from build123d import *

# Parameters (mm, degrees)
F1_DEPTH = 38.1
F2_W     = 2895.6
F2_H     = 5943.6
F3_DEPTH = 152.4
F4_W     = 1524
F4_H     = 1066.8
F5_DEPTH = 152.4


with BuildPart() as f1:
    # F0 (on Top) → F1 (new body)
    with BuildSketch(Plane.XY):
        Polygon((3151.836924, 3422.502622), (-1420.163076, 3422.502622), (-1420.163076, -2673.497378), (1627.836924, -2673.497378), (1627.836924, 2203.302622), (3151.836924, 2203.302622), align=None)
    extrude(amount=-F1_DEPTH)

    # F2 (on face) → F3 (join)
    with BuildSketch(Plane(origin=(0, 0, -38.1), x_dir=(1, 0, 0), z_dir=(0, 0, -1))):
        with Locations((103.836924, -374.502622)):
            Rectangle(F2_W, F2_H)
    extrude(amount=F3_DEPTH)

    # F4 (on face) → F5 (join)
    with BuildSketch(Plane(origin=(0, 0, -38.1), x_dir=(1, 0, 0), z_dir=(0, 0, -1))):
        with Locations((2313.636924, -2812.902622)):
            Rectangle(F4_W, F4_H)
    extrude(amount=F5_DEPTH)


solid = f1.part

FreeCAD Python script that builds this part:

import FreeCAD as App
import Part
import Sketcher
from FreeCAD import Vector
Q = App.Units.Quantity

doc = App.newDocument("Part")
params = doc.addObject("Spreadsheet::Sheet", "Params")
for row, (alias, value) in enumerate([
    ("sketch1_width", "180 in"),
    ("sketch1_width2", "120 in"),
    ("sketch1_height", "240 in"),
    ("sketch1_height2", "192 in"),
    ("pad1_length", "1.5 in"),
    ("sketch2_width", "114 in"),
    ("sketch2_height", "234 in"),
    ("pad2_length", "6 in"),
    ("sketch3_width", "60 in"),
    ("sketch3_height", "42 in"),
    ("pad3_length", "6 in"),
], start=1):
    params.set(f"A{row}", alias)
    params.set(f"B{row}", "=" + value)
    params.setAlias(f"B{row}", alias)

body = doc.addObject("PartDesign::Body", "Body")

sketch1 = doc.addObject("Sketcher::SketchObject", "Sketch")
body.addObject(sketch1)
sketch1.AttachmentSupport = (doc.XY_Plane, [""])
sketch1.MapMode = "FlatFace"
sketch1.addGeometry(Part.LineSegment(Vector(3152, 3423, 0), Vector(-1420, 3423, 0)), False)
sketch1.addGeometry(Part.LineSegment(Vector(-1420, 3423, 0), Vector(-1420, -2673, 0)), False)
sketch1.addGeometry(Part.LineSegment(Vector(-1420, -2673, 0), Vector(1628, -2673, 0)), False)
sketch1.addGeometry(Part.LineSegment(Vector(1628, -2673, 0), Vector(1628, 2203, 0)), False)
sketch1.addGeometry(Part.LineSegment(Vector(1628, 2203, 0), Vector(3152, 2203, 0)), False)
sketch1.addGeometry(Part.LineSegment(Vector(3152, 2203, 0), Vector(3152, 3423, 0)), False)
sketch1.addConstraint(Sketcher.Constraint("Coincident", 0, 2, 1, 1))
sketch1.addConstraint(Sketcher.Constraint("Coincident", 1, 2, 2, 1))
sketch1.addConstraint(Sketcher.Constraint("Coincident", 2, 2, 3, 1))
sketch1.addConstraint(Sketcher.Constraint("Coincident", 3, 2, 4, 1))
sketch1.addConstraint(Sketcher.Constraint("Coincident", 4, 2, 5, 1))
sketch1.addConstraint(Sketcher.Constraint("Coincident", 5, 2, 0, 1))
sketch1.addConstraint(Sketcher.Constraint("Horizontal", 0))
sketch1.addConstraint(Sketcher.Constraint("Vertical", 1))
sketch1.addConstraint(Sketcher.Constraint("Horizontal", 2))
sketch1.addConstraint(Sketcher.Constraint("Vertical", 3))
sketch1.addConstraint(Sketcher.Constraint("Horizontal", 4))
sketch1.addConstraint(Sketcher.Constraint("Vertical", 5))
sketch1.addConstraint(Sketcher.Constraint("DistanceX", 0, 2, 0, 1, Q("180 in")))
sketch1.addConstraint(Sketcher.Constraint("DistanceX", 2, 1, 2, 2, Q("120 in")))
sketch1.addConstraint(Sketcher.Constraint("DistanceY", 1, 2, 1, 1, Q("240 in")))
sketch1.addConstraint(Sketcher.Constraint("DistanceY", 3, 1, 3, 2, Q("192 in")))
sketch1.addConstraint(Sketcher.Constraint("DistanceY", -1, 1, 0, 2, 3422.502622))
sketch1.addConstraint(Sketcher.Constraint("DistanceX", 0, 2, -1, 1, 1420.163076))
sketch1.setExpression("Constraints[12]", "Params.sketch1_width")
sketch1.setExpression("Constraints[13]", "Params.sketch1_width2")
sketch1.setExpression("Constraints[14]", "Params.sketch1_height")
sketch1.setExpression("Constraints[15]", "Params.sketch1_height2")
pad1 = doc.addObject("PartDesign::Pad", "Pad")
body.addObject(pad1)
pad1.Profile = sketch1
pad1.setExpression("Length", "Params.pad1_length")
pad1.Reversed = True

sketch2 = doc.addObject("Sketcher::SketchObject", "Sketch001")
body.addObject(sketch2)
sketch2.AttachmentSupport = (doc.XY_Plane, [""])
sketch2.MapMode = "FlatFace"
sketch2.AttachmentOffset = App.Placement(Vector(0, 0, -1.5 * 25.4), App.Rotation())
sketch2.addGeometry(Part.LineSegment(Vector(-1344, -2597, 0), Vector(-1344, 3346, 0)), False)
sketch2.addGeometry(Part.LineSegment(Vector(-1344, 3346, 0), Vector(1552, 3346, 0)), False)
sketch2.addGeometry(Part.LineSegment(Vector(1552, 3346, 0), Vector(1552, -2597, 0)), False)
sketch2.addGeometry(Part.LineSegment(Vector(1552, -2597, 0), Vector(-1344, -2597, 0)), False)
sketch2.addConstraint(Sketcher.Constraint("Coincident", 0, 2, 1, 1))
sketch2.addConstraint(Sketcher.Constraint("Coincident", 1, 2, 2, 1))
sketch2.addConstraint(Sketcher.Constraint("Coincident", 2, 2, 3, 1))
sketch2.addConstraint(Sketcher.Constraint("Coincident", 3, 2, 0, 1))
sketch2.addConstraint(Sketcher.Constraint("Vertical", 0))
sketch2.addConstraint(Sketcher.Constraint("Horizontal", 1))
sketch2.addConstraint(Sketcher.Constraint("Vertical", 2))
sketch2.addConstraint(Sketcher.Constraint("Horizontal", 3))
sketch2.addConstraint(Sketcher.Constraint("DistanceX", 1, 1, 1, 2, Q("114 in")))
sketch2.addConstraint(Sketcher.Constraint("DistanceY", 0, 1, 0, 2, Q("234 in")))
sketch2.addConstraint(Sketcher.Constraint("DistanceY", 2, 2, -1, 1, 2597.297378))
sketch2.addConstraint(Sketcher.Constraint("DistanceX", 0, 2, -1, 1, 1343.963076))
sketch2.setExpression("Constraints[8]", "Params.sketch2_width")
sketch2.setExpression("Constraints[9]", "Params.sketch2_height")
pad2 = doc.addObject("PartDesign::Pad", "Pad001")
body.addObject(pad2)
pad2.Profile = sketch2
pad2.setExpression("Length", "Params.pad2_length")
pad2.Reversed = True

sketch3 = doc.addObject("Sketcher::SketchObject", "Sketch002")
body.addObject(sketch3)
sketch3.AttachmentSupport = (doc.XY_Plane, [""])
sketch3.MapMode = "FlatFace"
sketch3.AttachmentOffset = App.Placement(Vector(0, 0, -1.5 * 25.4), App.Rotation())
sketch3.addGeometry(Part.LineSegment(Vector(1552, 2280, 0), Vector(1552, 3346, 0)), False)
sketch3.addGeometry(Part.LineSegment(Vector(1552, 3346, 0), Vector(3076, 3346, 0)), False)
sketch3.addGeometry(Part.LineSegment(Vector(3076, 3346, 0), Vector(3076, 2280, 0)), False)
sketch3.addGeometry(Part.LineSegment(Vector(3076, 2280, 0), Vector(1552, 2280, 0)), False)
sketch3.addConstraint(Sketcher.Constraint("Coincident", 0, 2, 1, 1))
sketch3.addConstraint(Sketcher.Constraint("Coincident", 1, 2, 2, 1))
sketch3.addConstraint(Sketcher.Constraint("Coincident", 2, 2, 3, 1))
sketch3.addConstraint(Sketcher.Constraint("Coincident", 3, 2, 0, 1))
sketch3.addConstraint(Sketcher.Constraint("Vertical", 0))
sketch3.addConstraint(Sketcher.Constraint("Horizontal", 1))
sketch3.addConstraint(Sketcher.Constraint("Vertical", 2))
sketch3.addConstraint(Sketcher.Constraint("Horizontal", 3))
sketch3.addConstraint(Sketcher.Constraint("DistanceX", 1, 1, 1, 2, Q("60 in")))
sketch3.addConstraint(Sketcher.Constraint("DistanceY", 0, 1, 0, 2, Q("42 in")))
sketch3.addConstraint(Sketcher.Constraint("DistanceY", -1, 1, 2, 2, 2279.502622))
sketch3.addConstraint(Sketcher.Constraint("DistanceX", -1, 1, 0, 2, 1551.636924))
sketch3.setExpression("Constraints[8]", "Params.sketch3_width")
sketch3.setExpression("Constraints[9]", "Params.sketch3_height")
pad3 = doc.addObject("PartDesign::Pad", "Pad002")
body.addObject(pad3)
pad3.Profile = sketch3
pad3.setExpression("Length", "Params.pad3_length")
pad3.Reversed = True

doc.recompute()
